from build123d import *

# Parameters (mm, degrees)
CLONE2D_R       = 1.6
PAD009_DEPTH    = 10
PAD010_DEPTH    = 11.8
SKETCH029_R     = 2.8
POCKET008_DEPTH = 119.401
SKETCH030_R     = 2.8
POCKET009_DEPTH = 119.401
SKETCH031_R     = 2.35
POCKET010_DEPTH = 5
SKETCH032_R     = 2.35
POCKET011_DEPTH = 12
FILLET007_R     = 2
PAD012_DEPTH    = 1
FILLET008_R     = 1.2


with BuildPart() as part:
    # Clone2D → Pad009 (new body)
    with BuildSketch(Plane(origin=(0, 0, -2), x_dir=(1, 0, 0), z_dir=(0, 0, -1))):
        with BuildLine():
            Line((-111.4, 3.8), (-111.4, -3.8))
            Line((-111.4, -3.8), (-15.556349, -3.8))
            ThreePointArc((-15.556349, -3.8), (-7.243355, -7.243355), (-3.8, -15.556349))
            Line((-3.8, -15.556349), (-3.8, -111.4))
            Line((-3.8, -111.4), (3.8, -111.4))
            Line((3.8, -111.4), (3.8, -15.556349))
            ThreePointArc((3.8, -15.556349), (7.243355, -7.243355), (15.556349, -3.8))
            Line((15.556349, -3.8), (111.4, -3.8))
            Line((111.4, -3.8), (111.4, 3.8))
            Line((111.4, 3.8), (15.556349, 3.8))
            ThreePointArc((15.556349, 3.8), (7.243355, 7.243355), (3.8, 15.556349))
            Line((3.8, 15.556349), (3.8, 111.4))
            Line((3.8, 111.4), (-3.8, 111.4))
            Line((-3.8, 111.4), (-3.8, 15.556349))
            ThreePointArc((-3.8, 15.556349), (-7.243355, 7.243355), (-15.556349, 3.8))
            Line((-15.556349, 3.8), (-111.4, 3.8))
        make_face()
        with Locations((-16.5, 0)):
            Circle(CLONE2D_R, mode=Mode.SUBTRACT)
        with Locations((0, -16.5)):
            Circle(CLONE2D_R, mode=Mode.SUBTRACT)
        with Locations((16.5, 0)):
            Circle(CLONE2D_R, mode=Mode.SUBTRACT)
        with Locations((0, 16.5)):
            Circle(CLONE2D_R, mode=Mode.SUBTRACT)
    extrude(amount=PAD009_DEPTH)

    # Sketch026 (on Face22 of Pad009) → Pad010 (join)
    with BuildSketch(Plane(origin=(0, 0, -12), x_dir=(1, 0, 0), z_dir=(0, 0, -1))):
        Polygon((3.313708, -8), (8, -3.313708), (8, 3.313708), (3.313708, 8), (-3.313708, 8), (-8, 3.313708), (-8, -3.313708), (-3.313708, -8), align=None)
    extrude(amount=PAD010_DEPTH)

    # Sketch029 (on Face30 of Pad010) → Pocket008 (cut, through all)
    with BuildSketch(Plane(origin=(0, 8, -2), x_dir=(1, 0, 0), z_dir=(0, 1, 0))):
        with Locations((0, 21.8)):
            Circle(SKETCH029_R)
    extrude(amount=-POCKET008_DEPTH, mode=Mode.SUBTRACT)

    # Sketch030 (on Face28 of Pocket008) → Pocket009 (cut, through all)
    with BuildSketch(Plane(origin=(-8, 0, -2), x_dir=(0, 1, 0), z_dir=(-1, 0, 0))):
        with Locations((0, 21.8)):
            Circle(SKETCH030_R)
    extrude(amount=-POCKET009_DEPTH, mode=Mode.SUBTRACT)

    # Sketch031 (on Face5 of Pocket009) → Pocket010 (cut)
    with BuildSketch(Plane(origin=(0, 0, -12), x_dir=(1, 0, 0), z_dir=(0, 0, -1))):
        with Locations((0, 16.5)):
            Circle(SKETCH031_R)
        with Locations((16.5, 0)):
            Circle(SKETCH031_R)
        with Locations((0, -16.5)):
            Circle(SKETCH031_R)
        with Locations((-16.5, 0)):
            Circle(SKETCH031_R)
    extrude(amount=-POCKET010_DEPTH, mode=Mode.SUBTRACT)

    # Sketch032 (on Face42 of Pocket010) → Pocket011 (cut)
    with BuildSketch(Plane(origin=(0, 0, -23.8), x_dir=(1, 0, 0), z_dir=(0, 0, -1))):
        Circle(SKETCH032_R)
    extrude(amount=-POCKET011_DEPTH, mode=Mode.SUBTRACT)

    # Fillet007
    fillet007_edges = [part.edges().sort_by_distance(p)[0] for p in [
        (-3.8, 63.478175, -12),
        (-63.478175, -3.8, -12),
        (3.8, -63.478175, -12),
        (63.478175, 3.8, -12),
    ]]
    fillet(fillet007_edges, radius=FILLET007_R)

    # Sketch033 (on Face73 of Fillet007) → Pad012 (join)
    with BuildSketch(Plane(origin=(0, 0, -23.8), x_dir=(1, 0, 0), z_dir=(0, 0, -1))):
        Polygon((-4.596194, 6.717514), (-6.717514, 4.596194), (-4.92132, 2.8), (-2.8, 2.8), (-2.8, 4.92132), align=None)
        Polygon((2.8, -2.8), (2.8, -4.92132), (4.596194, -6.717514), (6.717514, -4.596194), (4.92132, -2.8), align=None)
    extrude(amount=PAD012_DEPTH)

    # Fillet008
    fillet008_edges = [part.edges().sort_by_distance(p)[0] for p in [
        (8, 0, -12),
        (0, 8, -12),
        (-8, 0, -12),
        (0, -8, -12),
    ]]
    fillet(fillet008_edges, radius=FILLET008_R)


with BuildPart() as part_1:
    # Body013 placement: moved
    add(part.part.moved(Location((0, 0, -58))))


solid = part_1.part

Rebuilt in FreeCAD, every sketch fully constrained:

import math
import FreeCAD as App
import Part
import Sketcher


def edges_at(feature, points):
    """Names of the edges that pass closest to the given points."""
    edges = feature.Shape.Edges
    near = lambda p: min(range(len(edges)), key=lambda i: edges[i].distToShape(Part.Vertex(*p))[0])
    return sorted({f"Edge{near(p) + 1}" for p in points})

doc = App.newDocument("Part")
params = doc.addObject("Spreadsheet::Sheet", "Params")
for row, (alias, value) in enumerate([
    ("sketch1_diameter", "3.2 mm"),
    ("sketch1_width", "7.6 mm"),
    ("pad1_length", "10 mm"),
    ("pad2_length", "11.8 mm"),
    ("sketch3_diameter", "5.6 mm"),
    ("sketch4_diameter", "5.6 mm"),
    ("sketch5_diameter", "4.7 mm"),
    ("pocket3_length", "5 mm"),
    ("sketch6_diameter", "4.7 mm"),
    ("pocket4_length", "12 mm"),
    ("fillet_radius", "2 mm"),
    ("sketch7_length", "3 mm"),
    ("pad3_length", "1 mm"),
    ("fillet2_radius", "1.2 mm"),
], start=1):
    params.set(f"A{row}", alias)
    params.set(f"B{row}", "=" + value)
    params.setAlias(f"B{row}", alias)

body = doc.addObject("PartDesign::Body", "Body")

# Sketch on XY plane
sketch1 = doc.addObject("Sketcher::SketchObject", "Sketch")
body.addObject(sketch1)
sketch1.AttachmentSupport = (doc.XY_Plane, [""])
sketch1.MapMode = "FlatFace"
sketch1.AttachmentOffset = App.Placement(App.Vector(0, 0, -2), App.Rotation())
sketch1.addGeometry(Part.LineSegment(App.Vector(-111.4, -3.8, 0), App.Vector(-111.4, 3.8, 0)), False)
sketch1.addGeometry(Part.LineSegment(App.Vector(-111.4, 3.8, 0), App.Vector(-15.6, 3.8, 0)), False)
sketch1.addGeometry(Part.ArcOfCircle(Part.Circle(App.Vector(-15.6, 15.6, 0), App.Vector(0, 0, 1), 11.8), math.radians(-90), math.radians(0)), False)
sketch1.addGeometry(Part.LineSegment(App.Vector(-3.8, 15.6, 0), App.Vector(-3.8, 111.4, 0)), False)
sketch1.addGeometry(Part.LineSegment(App.Vector(-3.8, 111.4, 0), App.Vector(3.8, 111.4, 0)), False)
sketch1.addGeometry(Part.LineSegment(App.Vector(3.8, 111.4, 0), App.Vector(3.8, 15.6, 0)), False)
sketch1.addGeometry(Part.ArcOfCircle(Part.Circle(App.Vector(15.6, 15.6, 0), App.Vector(0, 0, 1), 11.8), math.radians(-180), math.radians(-90)), False)
sketch1.addGeometry(Part.LineSegment(App.Vector(15.6, 3.8, 0), App.Vector(111.4, 3.8, 0)), False)
sketch1.addGeometry(Part.LineSegment(App.Vector(111.4, 3.8, 0), App.Vector(111.4, -3.8, 0)), False)
sketch1.addGeometry(Part.LineSegment(App.Vector(111.4, -3.8, 0), App.Vector(15.6, -3.8, 0)), False)
sketch1.addGeometry(Part.ArcOfCircle(Part.Circle(App.Vector(15.6, -15.6, 0), App.Vector(0, 0, 1), 11.8), math.radians(90), math.radians(180)), False)
sketch1.addGeometry(Part.LineSegment(App.Vector(3.8, -15.6, 0), App.Vector(3.8, -111.4, 0)), False)
sketch1.addGeometry(Part.LineSegment(App.Vector(3.8, -111.4, 0), App.Vector(-3.8, -111.4, 0)), False)
sketch1.addGeometry(Part.LineSegment(App.Vector(-3.8, -111.4, 0), App.Vector(-3.8, -15.6, 0)), False)
sketch1.addGeometry(Part.ArcOfCircle(Part.Circle(App.Vector(-15.6, -15.6, 0), App.Vector(0, 0, 1), 11.8), math.radians(0), math.radians(90)), False)
sketch1.addGeometry(Part.LineSegment(App.Vector(-15.6, -3.8, 0), App.Vector(-111.4, -3.8, 0)), False)
sketch1.addGeometry(Part.Circle(App.Vector(0, 16.5, 0), App.Vector(0, 0, 1), 1.6), False)
sketch1.addGeometry(Part.Circle(App.Vector(-16.5, 0, 0), App.Vector(0, 0, 1), 1.6), False)
sketch1.addGeometry(Part.Circle(App.Vector(16.5, 0, 0), App.Vector(0, 0, 1), 1.6), False)
sketch1.addGeometry(Part.Circle(App.Vector(0, -16.5, 0), App.Vector(0, 0, 1), 1.6), False)
sketch1.addConstraint(Sketcher.Constraint("Coincident", 0, 2, 1, 1))
sketch1.addConstraint(Sketcher.Constraint("Tangent", 1, 2, 2, 1))
sketch1.addConstraint(Sketcher.Constraint("Tangent", 2, 2, 3, 1))
sketch1.addConstraint(Sketcher.Constraint("Coincident", 3, 2, 4, 1))
sketch1.addConstraint(Sketcher.Constraint("Coincident", 4, 2, 5, 1))
sketch1.addConstraint(Sketcher.Constraint("Tangent", 5, 2, 6, 1))
sketch1.addConstraint(Sketcher.Constraint("Tangent", 6, 2, 7, 1))
sketch1.addConstraint(Sketcher.Constraint("Coincident", 7, 2, 8, 1))
sketch1.addConstraint(Sketcher.Constraint("Coincident", 8, 2, 9, 1))
sketch1.addConstraint(Sketcher.Constraint("Tangent", 9, 2, 10, 1))
sketch1.addConstraint(Sketcher.Constraint("Tangent", 10, 2, 11, 1))
sketch1.addConstraint(Sketcher.Constraint("Coincident", 11, 2, 12, 1))
sketch1.addConstraint(Sketcher.Constraint("Coincident", 12, 2, 13, 1))
sketch1.addConstraint(Sketcher.Constraint("Tangent", 13, 2, 14, 1))
sketch1.addConstraint(Sketcher.Constraint("Tangent", 14, 2, 15, 1))
sketch1.addConstraint(Sketcher.Constraint("Coincident", 15, 2, 0, 1))
sketch1.addConstraint(Sketcher.Constraint("Vertical", 0))
sketch1.addConstraint(Sketcher.Constraint("Horizontal", 1))
sketch1.addConstraint(Sketcher.Constraint("Vertical", 3))
sketch1.addConstraint(Sketcher.Constraint("Horizontal", 4))
sketch1.addConstraint(Sketcher.Constraint("Vertical", 5))
sketch1.addConstraint(Sketcher.Constraint("Horizontal", 7))
sketch1.addConstraint(Sketcher.Constraint("Vertical", 8))
sketch1.addConstraint(Sketcher.Constraint("Horizontal", 9))
sketch1.addConstraint(Sketcher.Constraint("Vertical", 11))
sketch1.addConstraint(Sketcher.Constraint("Horizontal", 12))
sketch1.addConstraint(Sketcher.Constraint("Vertical", 13))
sketch1.addConstraint(Sketcher.Constraint("Horizontal", 15))
sketch1.addConstraint(Sketcher.Constraint("Equal", 2, 6))
sketch1.addConstraint(Sketcher.Constraint("Equal", 6, 10))
sketch1.addConstraint(Sketcher.Constraint("Equal", 10, 14))
sketch1.addConstraint(Sketcher.Constraint("Equal", 16, 17))
sketch1.addConstraint(Sketcher.Constraint("Equal", 17, 18))
sketch1.addConstraint(Sketcher.Constraint("Equal", 18, 19))
sketch1.addConstraint(Sketcher.Constraint("Symmetric", 2, 3, 10, 3, -1, 1))
sketch1.addConstraint(Sketcher.Constraint("Symmetric", 6, 3, 14, 3, -1, 1))
sketch1.addConstraint(Sketcher.Constraint("Symmetric", 17, 3, 18, 3, -1, 1))
sketch1.addConstraint(Sketcher.Constraint("Symmetric", 16, 3, 19, 3, -1, 1))
sketch1.addConstraint(Sketcher.Constraint("Symmetric", 2, 3, 6, 3, -2))
sketch1.addConstraint(Sketcher.Constraint("PointOnObject", 16, 3, -2))
sketch1.addConstraint(Sketcher.Constraint("PointOnObject", 17, 3, -1))
sketch1.addConstraint(Sketcher.Constraint("Equal", 1, 7))
sketch1.addConstraint(Sketcher.Constraint("Equal", 12, 0))
sketch1.addConstraint(Sketcher.Constraint("Equal", 15, 3))
sketch1.addConstraint(Sketcher.Constraint("Equal", 5, 11))
sketch1.addConstraint(Sketcher.Constraint("Diameter", 16, 3.2))
sketch1.addConstraint(Sketcher.Constraint("DistanceX", 4, 1, 4, 2, 7.6))
sketch1.addConstraint(Sketcher.Constraint("DistanceX", 17, 3, 18, 3, 33.0))
sketch1.addConstraint(Sketcher.Constraint("DistanceY", 19, 3, 16, 3, 33.0))
sketch1.addConstraint(Sketcher.Constraint("DistanceX", 0, 2, -1, 1, 111.4))
sketch1.addConstraint(Sketcher.Constraint("Radius", 2, 11.756349))
sketch1.setExpression("Constraints[45]", "Params.sketch1_diameter")
sketch1.setExpression("Constraints[46]", "Params.sketch1_width")
pad1 = doc.addObject("PartDesign::Pad", "Pad")
body.addObject(pad1)
pad1.Profile = sketch1
pad1.setExpression("Length", "Params.pad1_length")
pad1.Reversed = True

# Sketch on XY plane
sketch2 = doc.addObject("Sketcher::SketchObject", "Sketch001")
body.addObject(sketch2)
sketch2.AttachmentSupport = (doc.XY_Plane, [""])
sketch2.MapMode = "FlatFace"
sketch2.AttachmentOffset = App.Placement(App.Vector(0, 0, -12), App.Rotation())
sketch2.addGeometry(Part.LineSegment(App.Vector(3, 8, 0), App.Vector(8, 3, 0)), False)
sketch2.addGeometry(Part.LineSegment(App.Vector(8, 3, 0), App.Vector(8, -3, 0)), False)
sketch2.addGeometry(Part.LineSegment(App.Vector(8, -3, 0), App.Vector(3, -8, 0)), False)
sketch2.addGeometry(Part.LineSegment(App.Vector(3, -8, 0), App.Vector(-3, -8, 0)), False)
sketch2.addGeometry(Part.LineSegment(App.Vector(-3, -8, 0), App.Vector(-8, -3, 0)), False)
sketch2.addGeometry(Part.LineSegment(App.Vector(-8, -3, 0), App.Vector(-8, 3, 0)), False)
sketch2.addGeometry(Part.LineSegment(App.Vector(-8, 3, 0), App.Vector(-3, 8, 0)), False)
sketch2.addGeometry(Part.LineSegment(App.Vector(-3, 8, 0), App.Vector(3, 8, 0)), False)
sketch2.addConstraint(Sketcher.Constraint("Coincident", 0, 2, 1, 1))
sketch2.addConstraint(Sketcher.Constraint("Coincident", 1, 2, 2, 1))
sketch2.addConstraint(Sketcher.Constraint("Coincident", 2, 2, 3, 1))
sketch2.addConstraint(Sketcher.Constraint("Coincident", 3, 2, 4, 1))
sketch2.addConstraint(Sketcher.Constraint("Coincident", 4, 2, 5, 1))
sketch2.addConstraint(Sketcher.Constraint("Coincident", 5, 2, 6, 1))
sketch2.addConstraint(Sketcher.Constraint("Coincident", 6, 2, 7, 1))
sketch2.addConstraint(Sketcher.Constraint("Coincident", 7, 2, 0, 1))
sketch2.addConstraint(Sketcher.Constraint("Vertical", 1))
sketch2.addConstraint(Sketcher.Constraint("Horizontal", 3))
sketch2.addConstraint(Sketcher.Constraint("Vertical", 5))
sketch2.addConstraint(Sketcher.Constraint("Horizontal", 7))
sketch2.addConstraint(Sketcher.Constraint("Symmetric", 0, 2, 4, 2, -1, 1))
sketch2.addConstraint(Sketcher.Constraint("Symmetric", 2, 2, 6, 2, -1, 1))
sketch2.addConstraint(Sketcher.Constraint("Perpendicular", 0, 2))
sketch2.addConstraint(Sketcher.Constraint("Perpendicular", 2, 4))
sketch2.addConstraint(Sketcher.Constraint("Perpendicular", 4, 6))
sketch2.addConstraint(Sketcher.Constraint("Horizontal", 1, 2, 4, 2))
sketch2.addConstraint(Sketcher.Constraint("Vertical", 3, 2, 6, 2))
sketch2.addConstraint(Sketcher.Constraint("Equal", 7, 1))
sketch2.addConstraint(Sketcher.Constraint("DistanceX", -1, 1, 0, 2, 8.0))
sketch2.addConstraint(Sketcher.Constraint("DistanceX", 3, 2, 3, 1, 6.627416))
pad2 = doc.addObject("PartDesign::Pad", "Pad001")
body.addObject(pad2)
pad2.Profile = sketch2
pad2.setExpression("Length", "Params.pad2_length")
pad2.Reversed = True

# Sketch on XZ plane
sketch3 = doc.addObject("Sketcher::SketchObject", "Sketch002")
body.addObject(sketch3)
sketch3.AttachmentSupport = (doc.XZ_Plane, [""])
sketch3.MapMode = "FlatFace"
sketch3.AttachmentOffset = App.Placement(App.Vector(0, 0, -8), App.Rotation())
sketch3.addGeometry(Part.Circle(App.Vector(0, -23.8, 0), App.Vector(0, 0, 1), 2.8), False)
sketch3.addConstraint(Sketcher.Constraint("PointOnObject", 0, 3, -2))
sketch3.addConstraint(Sketcher.Constraint("Diameter", 0, 5.6))
sketch3.addConstraint(Sketcher.Constraint("DistanceY", 0, 3, -1, 1, 23.8))
sketch3.setExpression("Constraints[1]", "Params.sketch3_diameter")
pocket1 = doc.addObject("PartDesign::Pocket", "Pocket")
body.addObject(pocket1)
pocket1.Profile = sketch3
pocket1.Type = "ThroughAll"
pocket1.Reversed = True

# Sketch on YZ plane
sketch4 = doc.addObject("Sketcher::SketchObject", "Sketch003")
body.addObject(sketch4)
sketch4.AttachmentSupport = (doc.YZ_Plane, [""])
sketch4.MapMode = "FlatFace"
sketch4.AttachmentOffset = App.Placement(App.Vector(0, 0, -8), App.Rotation())
sketch4.addGeometry(Part.Circle(App.Vector(0, -23.8, 0), App.Vector(0, 0, 1), 2.8), False)
sketch4.addConstraint(Sketcher.Constraint("PointOnObject", 0, 3, -2))
sketch4.addConstraint(Sketcher.Constraint("Diameter", 0, 5.6))
sketch4.addConstraint(Sketcher.Constraint("DistanceY", 0, 3, -1, 1, 23.8))
sketch4.setExpression("Constraints[1]", "Params.sketch4_diameter")
pocket2 = doc.addObject("PartDesign::Pocket", "Pocket001")
body.addObject(pocket2)
pocket2.Profile = sketch4
pocket2.Type = "ThroughAll"
pocket2.Reversed = True

# Sketch on XY plane
sketch5 = doc.addObject("Sketcher::SketchObject", "Sketch004")
body.addObject(sketch5)
sketch5.AttachmentSupport = (doc.XY_Plane, [""])
sketch5.MapMode = "FlatFace"
sketch5.AttachmentOffset = App.Placement(App.Vector(0, 0, -12), App.Rotation())
sketch5.addGeometry(Part.Circle(App.Vector(0, -16.5, 0), App.Vector(0, 0, 1), 2.4), False)
sketch5.addGeometry(Part.Circle(App.Vector(16.5, 0, 0), App.Vector(0, 0, 1), 2.4), False)
sketch5.addGeometry(Part.Circle(App.Vector(0, 16.5, 0), App.Vector(0, 0, 1), 2.4), False)
sketch5.addGeometry(Part.Circle(App.Vector(-16.5, 0, 0), App.Vector(0, 0, 1), 2.4), False)
sketch5.addConstraint(Sketcher.Constraint("Equal", 0, 1))
sketch5.addConstraint(Sketcher.Constraint("Equal", 1, 2))
sketch5.addConstraint(Sketcher.Constraint("Equal", 2, 3))
sketch5.addConstraint(Sketcher.Constraint("Symmetric", 0, 3, 2, 3, -1, 1))
sketch5.addConstraint(Sketcher.Constraint("Symmetric", 1, 3, 3, 3, -1, 1))
sketch5.addConstraint(Sketcher.Constraint("PointOnObject", 0, 3, -2))
sketch5.addConstraint(Sketcher.Constraint("PointOnObject", 1, 3, -1))
sketch5.addConstraint(Sketcher.Constraint("Diameter", 0, 4.7))
sketch5.addConstraint(Sketcher.Constraint("DistanceY", 0, 3, 2, 3, 33.0))
sketch5.addConstraint(Sketcher.Constraint("DistanceX", 3, 3, 1, 3, 33.0))
sketch5.setExpression("Constraints[7]", "Params.sketch5_diameter")
pocket3 = doc.addObject("PartDesign::Pocket", "Pocket002")
body.addObject(pocket3)
pocket3.Profile = sketch5
pocket3.setExpression("Length", "Params.pocket3_length")
pocket3.Reversed = True

# Sketch on XY plane
sketch6 = doc.addObject("Sketcher::SketchObject", "Sketch005")
body.addObject(sketch6)
sketch6.AttachmentSupport = (doc.XY_Plane, [""])
sketch6.MapMode = "FlatFace"
sketch6.AttachmentOffset = App.Placement(App.Vector(0, 0, -23.8), App.Rotation())
sketch6.addGeometry(Part.Circle(App.Vector(0, 0, 0), App.Vector(0, 0, 1), 2.4), False)
sketch6.addConstraint(Sketcher.Constraint("Coincident", 0, 3, -1, 1))
sketch6.addConstraint(Sketcher.Constraint("Diameter", 0, 4.7))
sketch6.setExpression("Constraints[1]", "Params.sketch6_diameter")
pocket4 = doc.addObject("PartDesign::Pocket", "Pocket003")
body.addObject(pocket4)
pocket4.Profile = sketch6
pocket4.setExpression("Length", "Params.pocket4_length")
pocket4.Reversed = True
doc.recompute()

fillet = doc.addObject("PartDesign::Fillet", "Fillet")
body.addObject(fillet)
fillet.Base = (pocket4, edges_at(pocket4, [
    (-3.8, 63.478, -12),
    (-63.478, -3.8, -12),
    (3.8, -63.478, -12),
    (63.478, 3.8, -12),
]))
fillet.setExpression("Radius", "Params.fillet_radius")

# Sketch on XY plane
sketch7 = doc.addObject("Sketcher::SketchObject", "Sketch006")
body.addObject(sketch7)
sketch7.AttachmentSupport = (doc.XY_Plane, [""])
sketch7.MapMode = "FlatFace"
sketch7.AttachmentOffset = App.Placement(App.Vector(0, 0, -23.8), App.Rotation())
sketch7.addGeometry(Part.LineSegment(App.Vector(-4.6, -6.7, 0), App.Vector(-6.7, -4.6, 0)), False)
sketch7.addGeometry(Part.LineSegment(App.Vector(-6.7, -4.6, 0), App.Vector(-4.9, -2.8, 0)), False)
sketch7.addGeometry(Part.LineSegment(App.Vector(-4.9, -2.8, 0), App.Vector(-2.8, -2.8, 0)), False)
sketch7.addGeometry(Part.LineSegment(App.Vector(-2.8, -2.8, 0), App.Vector(-2.8, -4.9, 0)), False)
sketch7.addGeometry(Part.LineSegment(App.Vector(-2.8, -4.9, 0), App.Vector(-4.6, -6.7, 0)), False)
sketch7.addGeometry(Part.LineSegment(App.Vector(2.8, 2.8, 0), App.Vector(2.8, 4.9, 0)), False)
sketch7.addGeometry(Part.LineSegment(App.Vector(2.8, 4.9, 0), App.Vector(4.6, 6.7, 0)), False)
sketch7.addGeometry(Part.LineSegment(App.Vector(4.6, 6.7, 0), App.Vector(6.7, 4.6, 0)), False)
sketch7.addGeometry(Part.LineSegment(App.Vector(6.7, 4.6, 0), App.Vector(4.9, 2.8, 0)), False)
sketch7.addGeometry(Part.LineSegment(App.Vector(4.9, 2.8, 0), App.Vector(2.8, 2.8, 0)), False)
sketch7.addConstraint(Sketcher.Constraint("Coincident", 0, 2, 1, 1))
sketch7.addConstraint(Sketcher.Constraint("Coincident", 1, 2, 2, 1))
sketch7.addConstraint(Sketcher.Constraint("Coincident", 2, 2, 3, 1))
sketch7.addConstraint(Sketcher.Constraint("Coincident", 3, 2, 4, 1))
sketch7.addConstraint(Sketcher.Constraint("Coincident", 4, 2, 0, 1))
sketch7.addConstraint(Sketcher.Constraint("Coincident", 5, 2, 6, 1))
sketch7.addConstraint(Sketcher.Constraint("Coincident", 6, 2, 7, 1))
sketch7.addConstraint(Sketcher.Constraint("Coincident", 7, 2, 8, 1))
sketch7.addConstraint(Sketcher.Constraint("Coincident", 8, 2, 9, 1))
sketch7.addConstraint(Sketcher.Constraint("Coincident", 9, 2, 5, 1))
sketch7.addConstraint(Sketcher.Constraint("Horizontal", 2))
sketch7.addConstraint(Sketcher.Constraint("Vertical", 3))
sketch7.addConstraint(Sketcher.Constraint("Vertical", 5))
sketch7.addConstraint(Sketcher.Constraint("Horizontal", 9))
sketch7.addConstraint(Sketcher.Constraint("Symmetric", 3, 2, 5, 2, -1, 1))
sketch7.addConstraint(Sketcher.Constraint("Symmetric", 4, 2, 6, 2, -1, 1))
sketch7.addConstraint(Sketcher.Constraint("Symmetric", 0, 2, 7, 2, -1, 1))
sketch7.addConstraint(Sketcher.Constraint("Symmetric", 1, 2, 8, 2, -1, 1))
sketch7.addConstraint(Sketcher.Constraint("Perpendicular", 0, 1))
sketch7.addConstraint(Sketcher.Constraint("Parallel", 1, 4))
sketch7.addConstraint(Sketcher.Constraint("Equal", 9, 3))
sketch7.addConstraint(Sketcher.Constraint("Equal", 1, 4))
sketch7.addConstraint(Sketcher.Constraint("Distance", 0, 3.0))
sketch7.addConstraint(Sketcher.Constraint("DistanceY", 1, 2, -1, 1, 2.8))
sketch7.addConstraint(Sketcher.Constraint("DistanceX", 2, 2, -1, 1, 2.8))
sketch7.addConstraint(Sketcher.Constraint("Distance", 1, 2.540202))
sketch7.setExpression("Constraints[22]", "Params.sketch7_length")
pad3 = doc.addObject("PartDesign::Pad", "Pad002")
body.addObject(pad3)
pad3.Profile = sketch7
pad3.setExpression("Length", "Params.pad3_length")
pad3.Reversed = True
doc.recompute()

fillet2 = doc.addObject("PartDesign::Fillet", "Fillet001")
body.addObject(fillet2)
fillet2.Base = (pad3, edges_at(pad3, [
    (8, 0, -12),
    (0, 8, -12),
    (-8, 0, -12),
    (0, -8, -12),
]))
fillet2.setExpression("Radius", "Params.fillet2_radius")
body2 = doc.addObject("PartDesign::Body", "Body001")
doc.recompute()

body.Placement = App.Placement(App.Vector(0, 0, -58), App.Rotation(App.Vector(0, 0, 1), 0))
boolean = doc.addObject("PartDesign::Boolean", "Boolean")
body2.addObject(boolean)
boolean.Type = "Fuse"
boolean.addObjects([body])

doc.recompute()
